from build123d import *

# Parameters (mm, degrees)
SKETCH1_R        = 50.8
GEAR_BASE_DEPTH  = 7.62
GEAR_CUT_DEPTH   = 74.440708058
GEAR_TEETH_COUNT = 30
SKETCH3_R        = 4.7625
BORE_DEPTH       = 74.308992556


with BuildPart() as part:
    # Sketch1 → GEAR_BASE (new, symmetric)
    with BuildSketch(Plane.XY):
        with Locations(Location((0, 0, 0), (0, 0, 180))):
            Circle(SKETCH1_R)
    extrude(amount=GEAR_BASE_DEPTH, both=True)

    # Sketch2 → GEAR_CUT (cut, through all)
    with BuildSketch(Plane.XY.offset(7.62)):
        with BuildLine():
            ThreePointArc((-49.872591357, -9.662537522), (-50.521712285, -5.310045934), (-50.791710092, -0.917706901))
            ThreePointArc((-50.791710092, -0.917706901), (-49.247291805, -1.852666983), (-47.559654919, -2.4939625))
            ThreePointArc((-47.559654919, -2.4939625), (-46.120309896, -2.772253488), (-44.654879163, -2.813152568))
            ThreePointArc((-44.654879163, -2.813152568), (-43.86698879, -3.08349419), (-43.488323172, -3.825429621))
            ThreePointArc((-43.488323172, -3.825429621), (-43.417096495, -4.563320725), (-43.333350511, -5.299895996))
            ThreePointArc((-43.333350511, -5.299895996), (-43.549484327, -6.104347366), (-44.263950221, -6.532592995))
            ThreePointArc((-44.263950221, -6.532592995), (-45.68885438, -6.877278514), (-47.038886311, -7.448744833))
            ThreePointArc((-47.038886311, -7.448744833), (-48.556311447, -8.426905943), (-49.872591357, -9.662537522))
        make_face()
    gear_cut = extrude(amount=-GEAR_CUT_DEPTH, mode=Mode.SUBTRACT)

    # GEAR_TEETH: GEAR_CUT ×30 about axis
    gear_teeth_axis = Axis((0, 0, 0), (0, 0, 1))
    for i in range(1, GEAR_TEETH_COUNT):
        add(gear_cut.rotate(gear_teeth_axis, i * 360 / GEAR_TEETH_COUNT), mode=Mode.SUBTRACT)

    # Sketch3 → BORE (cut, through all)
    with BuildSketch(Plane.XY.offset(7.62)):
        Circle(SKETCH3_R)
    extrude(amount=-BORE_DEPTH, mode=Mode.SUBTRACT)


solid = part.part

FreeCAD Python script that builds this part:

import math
import FreeCAD as App
import Part
import Sketcher
Q = App.Units.Quantity

doc = App.newDocument("Part")
body = doc.addObject("PartDesign::Body", "Body")

# Sketch on XY plane
sketch1 = body.newObject("Sketcher::SketchObject", "Sketch")
sketch1.AttachmentSupport = (doc.getObject("XY_Plane"), [""])
sketch1.MapMode = "FlatFace"
sketch1.addGeometry(Part.Circle(App.Vector(0, 0, 0), App.Vector(0, 0, 1), 51), False)
sketch1.addConstraint([
    Sketcher.Constraint("Coincident", 0, 3, -1, 1),
    Sketcher.Constraint("Diameter", 0, Q("4 in")),
])
pad1 = body.newObject("PartDesign::Pad", "Pad")
pad1.Profile = sketch1
pad1.Length = Q("0.6 in")
pad1.Midplane = True

# Sketch on XY plane
sketch2 = body.newObject("Sketcher::SketchObject", "Sketch001")
sketch2.AttachmentSupport = (doc.getObject("XY_Plane"), [""])
sketch2.MapMode = "FlatFace"
sketch2.AttachmentOffset = App.Placement(App.Vector(0, 0, 0.3 * 25.4), App.Rotation())
sketch2.addGeometry([
    Part.ArcOfCircle(Part.Circle(App.Vector(0, 0, 0), App.Vector(0, 0, 1), 50.8), math.radians(-178.96), math.radians(-169.04)),  # 0
    Part.ArcOfCircle(Part.Circle(App.Vector(-42.4, -16.3, 0), App.Vector(0, 0, 1), 10), math.radians(118), math.radians(138)),  # 1
    Part.ArcOfCircle(Part.Circle(App.Vector(-42.9, -15.4, 0), App.Vector(0, 0, 1), 9), math.radians(98.93), math.radians(117.61)),  # 2
    Part.ArcOfCircle(Part.Circle(App.Vector(-44.4, -5.4, 0), App.Vector(0, 0, 1), 1.1), math.radians(-81), math.radians(7)),  # 3
    Part.ArcOfCircle(Part.Circle(App.Vector(0, 0, 0), App.Vector(0, 0, 1), 43.7), math.radians(-174.97), math.radians(-173.03)),  # 4
    Part.ArcOfCircle(Part.Circle(App.Vector(-44.6, -3.9, 0), App.Vector(0, 0, 1), 1.1), math.radians(5), math.radians(93)),  # 5
    Part.ArcOfCircle(Part.Circle(App.Vector(-45.1, 6.2, 0), App.Vector(0, 0, 1), 9), math.radians(-105.61), math.radians(-86.93)),  # 6
    Part.ArcOfCircle(Part.Circle(App.Vector(-44.9, 7.1, 0), App.Vector(0, 0, 1), 10), math.radians(-126), math.radians(-106)),  # 7
], False)
sketch2.addConstraint([
    Sketcher.Constraint("Coincident", 0, 2, 1, 2),
    Sketcher.Constraint("Tangent", 1, 1, 2, 2),
    Sketcher.Constraint("Tangent", 2, 1, 3, 1),
    Sketcher.Constraint("Tangent", 3, 2, 4, 2),
    Sketcher.Constraint("Tangent", 4, 1, 5, 1),
    Sketcher.Constraint("Tangent", 5, 2, 6, 2),
    Sketcher.Constraint("Tangent", 6, 1, 7, 2),
    Sketcher.Constraint("Coincident", 7, 1, 0, 1),
    Sketcher.Constraint("Coincident", 0, 3, -1, 1),
    Sketcher.Constraint("Coincident", 4, 3, -1, 1),
    Sketcher.Constraint("Equal", 3, 5),
    Sketcher.Constraint("Equal", 2, 6),
    Sketcher.Constraint("Equal", 1, 7),
    Sketcher.Constraint("Radius", 0, Q("2 in")),
    Sketcher.Constraint("Radius", 4, Q("1.71875 in")),
    Sketcher.Constraint("Radius", 1, 9.97585),
    Sketcher.Constraint("Radius", 3, 1.11125),
    Sketcher.Constraint("DistanceX", 2, 3, -1, 1, Q("1.6877 in")),
    Sketcher.Constraint("Radius", 2, 8.999048),
    Sketcher.Constraint("DistanceX", 5, 3, -1, 1, 44.595299),
    Sketcher.Constraint("DistanceX", 3, 3, 2, 3, 1.5688),
    Sketcher.Constraint("DistanceY", 2, 3, 1, 1, 7.9739),
    Sketcher.Constraint("DistanceX", 6, 3, -1, 1, 45.13737),
    Sketcher.Constraint("DistanceY", 6, 3, 7, 3, 0.940751),
])
pocket1 = body.newObject("PartDesign::Pocket", "Pocket")
pocket1.Profile = sketch2
pocket1.Type = "ThroughAll"
doc.recompute()

polarpattern = body.newObject("PartDesign::PolarPattern", "PolarPattern")
polarpattern.Originals = [pocket1]
polarpattern.Axis = (doc.getObject("Z_Axis"), [""])
polarpattern.Angle = 360
polarpattern.Occurrences = 30
body.Tip = polarpattern

# Sketch on XY plane
sketch3 = body.newObject("Sketcher::SketchObject", "Sketch002")
sketch3.AttachmentSupport = (doc.getObject("XY_Plane"), [""])
sketch3.MapMode = "FlatFace"
sketch3.AttachmentOffset = App.Placement(App.Vector(0, 0, 0.3 * 25.4), App.Rotation())
sketch3.addGeometry(Part.Circle(App.Vector(0, 0, 0), App.Vector(0, 0, 1), 4.8), False)
sketch3.addConstraint([
    Sketcher.Constraint("Coincident", 0, 3, -1, 1),
    Sketcher.Constraint("Diameter", 0, Q("0.375 in")),
])
pocket2 = body.newObject("PartDesign::Pocket", "Pocket001")
pocket2.Profile = sketch3
pocket2.Type = "ThroughAll"

doc.recompute()
